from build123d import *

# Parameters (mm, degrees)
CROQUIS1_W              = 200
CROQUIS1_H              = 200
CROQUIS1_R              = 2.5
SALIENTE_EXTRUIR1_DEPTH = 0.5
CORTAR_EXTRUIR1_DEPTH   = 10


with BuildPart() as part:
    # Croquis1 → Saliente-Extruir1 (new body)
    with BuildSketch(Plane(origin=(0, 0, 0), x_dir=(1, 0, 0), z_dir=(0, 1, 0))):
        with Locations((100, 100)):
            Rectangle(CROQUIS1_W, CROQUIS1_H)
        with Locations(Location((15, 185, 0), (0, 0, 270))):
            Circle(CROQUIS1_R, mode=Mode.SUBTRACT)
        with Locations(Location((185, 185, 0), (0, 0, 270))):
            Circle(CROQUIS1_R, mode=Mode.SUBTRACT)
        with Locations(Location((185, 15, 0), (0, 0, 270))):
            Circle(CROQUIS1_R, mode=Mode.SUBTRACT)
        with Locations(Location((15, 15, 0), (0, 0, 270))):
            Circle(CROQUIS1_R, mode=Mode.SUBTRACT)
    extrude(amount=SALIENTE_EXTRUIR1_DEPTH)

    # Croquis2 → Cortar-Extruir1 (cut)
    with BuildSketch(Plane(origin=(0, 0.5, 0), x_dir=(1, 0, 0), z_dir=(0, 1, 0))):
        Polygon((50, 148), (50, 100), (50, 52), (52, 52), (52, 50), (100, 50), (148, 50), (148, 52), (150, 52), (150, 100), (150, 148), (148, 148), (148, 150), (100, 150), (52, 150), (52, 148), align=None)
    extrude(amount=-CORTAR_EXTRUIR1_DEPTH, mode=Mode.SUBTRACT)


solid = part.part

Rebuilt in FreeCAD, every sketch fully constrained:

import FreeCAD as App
import Part
import Sketcher

V = App.Vector


def add_polygon(sketch, points):
    """Adds a closed chain of lines whose ends are joined by coincident constraints."""
    first, n = sketch.GeometryCount, len(points)
    for a, b in zip(points, points[1:] + points[:1]):
        sketch.addGeometry(Part.LineSegment(App.Vector(*a, 0), App.Vector(*b, 0)), False)
    for i in range(n):
        sketch.addConstraint(Sketcher.Constraint("Coincident", first + i, 2, first + (i + 1) % n, 1))

doc = App.newDocument("Part")
body = doc.addObject("PartDesign::Body", "Body")

# Sketch on XZ plane
sketch1 = body.newObject("Sketcher::SketchObject", "Sketch")
sketch1.AttachmentSupport = (doc.getObject("XZ_Plane"), [""])
sketch1.MapMode = "FlatFace"
add_polygon(sketch1, [(0, -200), (0, 0), (200, 0), (200, -200)])  # lines 0-3
sketch1.addGeometry(Part.Circle(V(15, -15, 0), V(0, 0, 1), 2.5), False)  # 4
sketch1.addGeometry(Part.Circle(V(185, -15, 0), V(0, 0, 1), 2.5), False)  # 5
sketch1.addGeometry(Part.Circle(V(15, -185, 0), V(0, 0, 1), 2.5), False)  # 6
sketch1.addGeometry(Part.Circle(V(185, -185, 0), V(0, 0, 1), 2.5), False)  # 7
sketch1.addConstraint([
    Sketcher.Constraint("Vertical", 0),
    Sketcher.Constraint("Horizontal", 1),
    Sketcher.Constraint("Vertical", 2),
    Sketcher.Constraint("Horizontal", 3),
    Sketcher.Constraint("Coincident", 0, 2, -1, 1),
    Sketcher.Constraint("Equal", 4, 5),
    Sketcher.Constraint("Equal", 5, 6),
    Sketcher.Constraint("Equal", 6, 7),
    Sketcher.Constraint("Horizontal", 4, 3, 5, 3),
    Sketcher.Constraint("Horizontal", 6, 3, 7, 3),
    Sketcher.Constraint("Vertical", 4, 3, 6, 3),
    Sketcher.Constraint("Vertical", 5, 3, 7, 3),
    Sketcher.Constraint("Equal", 3, 0),
    Sketcher.Constraint("Diameter", 4, 5.0),
    Sketcher.Constraint("DistanceX", 1, 1, 1, 2, 200.0),
    Sketcher.Constraint("DistanceX", -1, 1, 4, 3, 15.0),
    Sketcher.Constraint("DistanceY", 4, 3, -1, 1, 15.0),
    Sketcher.Constraint("DistanceX", -1, 1, 5, 3, 185.0),
    Sketcher.Constraint("DistanceY", 6, 3, -1, 1, 185.0),
])
pad1 = body.newObject("PartDesign::Pad", "Pad")
pad1.Profile = sketch1
pad1.Length = 0.5
pad1.Reversed = True

# Sketch on XZ plane
sketch2 = body.newObject("Sketcher::SketchObject", "Sketch001")
sketch2.AttachmentSupport = (doc.getObject("XZ_Plane"), [""])
sketch2.MapMode = "FlatFace"
sketch2.AttachmentOffset = App.Placement(V(0, 0, -0.5), App.Rotation())
add_polygon(sketch2, [(50, -148), (50, -52), (52, -52), (52, -50), (148, -50), (148, -52), (150, -52), (150, -148), (148, -148), (148, -150), (52, -150), (52, -148)])  # lines 0-11
sketch2.addConstraint([
    Sketcher.Constraint("Vertical", 0),
    Sketcher.Constraint("Horizontal", 1),
    Sketcher.Constraint("Vertical", 2),
    Sketcher.Constraint("Horizontal", 3),
    Sketcher.Constraint("Vertical", 4),
    Sketcher.Constraint("Horizontal", 5),
    Sketcher.Constraint("Vertical", 6),
    Sketcher.Constraint("Horizontal", 7),
    Sketcher.Constraint("Vertical", 8),
    Sketcher.Constraint("Horizontal", 9),
    Sketcher.Constraint("Vertical", 10),
    Sketcher.Constraint("Horizontal", 11),
    Sketcher.Constraint("Horizontal", 1, 2, 4, 2),
    Sketcher.Constraint("Horizontal", 7, 2, 10, 2),
    Sketcher.Constraint("Vertical", 4, 2, 7, 2),
    Sketcher.Constraint("Vertical", 2, 2, 9, 2),
    Sketcher.Constraint("Equal", 1, 5),
    Sketcher.Constraint("Equal", 9, 0),
    Sketcher.Constraint("Equal", 11, 2),
    Sketcher.Constraint("Equal", 4, 8),
    Sketcher.Constraint("DistanceX", 1, 1, 1, 2, 2.0),
    Sketcher.Constraint("DistanceX", 3, 1, 3, 2, 96.0),
    Sketcher.Constraint("DistanceX", -1, 1, 0, 2, 50.0),
    Sketcher.Constraint("DistanceY", 0, 2, -1, 1, 52.0),
])
pocket1 = body.newObject("PartDesign::Pocket", "Pocket")
pocket1.Profile = sketch2
pocket1.Length = 10
pocket1.Reversed = True

doc.recompute()
